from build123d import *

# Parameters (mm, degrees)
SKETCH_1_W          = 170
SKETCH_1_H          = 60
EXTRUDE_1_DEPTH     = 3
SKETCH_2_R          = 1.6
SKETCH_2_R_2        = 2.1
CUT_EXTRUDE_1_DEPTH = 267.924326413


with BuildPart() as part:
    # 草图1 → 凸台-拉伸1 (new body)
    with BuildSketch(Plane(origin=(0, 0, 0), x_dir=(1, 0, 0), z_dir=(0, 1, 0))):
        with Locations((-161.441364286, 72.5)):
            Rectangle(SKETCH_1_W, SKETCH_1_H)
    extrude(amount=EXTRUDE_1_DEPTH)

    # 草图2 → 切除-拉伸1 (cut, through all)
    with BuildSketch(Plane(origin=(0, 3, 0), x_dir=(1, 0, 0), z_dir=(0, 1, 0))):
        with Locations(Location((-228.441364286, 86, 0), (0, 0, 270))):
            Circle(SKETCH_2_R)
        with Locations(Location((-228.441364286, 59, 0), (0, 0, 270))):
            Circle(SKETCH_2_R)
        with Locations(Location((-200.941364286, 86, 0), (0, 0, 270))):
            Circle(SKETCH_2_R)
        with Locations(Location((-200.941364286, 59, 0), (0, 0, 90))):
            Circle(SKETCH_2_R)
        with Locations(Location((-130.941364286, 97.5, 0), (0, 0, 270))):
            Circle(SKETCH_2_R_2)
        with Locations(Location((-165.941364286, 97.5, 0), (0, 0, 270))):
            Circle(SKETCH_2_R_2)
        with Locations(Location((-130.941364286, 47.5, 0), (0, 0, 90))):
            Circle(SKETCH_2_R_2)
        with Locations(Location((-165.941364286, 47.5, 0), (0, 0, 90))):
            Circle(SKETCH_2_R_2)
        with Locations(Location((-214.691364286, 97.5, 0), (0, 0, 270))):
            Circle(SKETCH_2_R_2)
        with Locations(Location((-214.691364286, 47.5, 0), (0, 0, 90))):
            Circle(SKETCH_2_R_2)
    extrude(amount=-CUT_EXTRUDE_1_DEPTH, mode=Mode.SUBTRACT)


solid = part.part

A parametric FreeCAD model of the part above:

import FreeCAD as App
import Part
import Sketcher

V = App.Vector


def add_polygon(sketch, points):
    """Adds a closed chain of lines whose ends are joined by coincident constraints."""
    first, n = sketch.GeometryCount, len(points)
    for a, b in zip(points, points[1:] + points[:1]):
        sketch.addGeometry(Part.LineSegment(App.Vector(*a, 0), App.Vector(*b, 0)), False)
    for i in range(n):
        sketch.addConstraint(Sketcher.Constraint("Coincident", first + i, 2, first + (i + 1) % n, 1))

doc = App.newDocument("Part")
body = doc.addObject("PartDesign::Body", "Body")

# Sketch on XZ plane
sketch1 = doc.addObject("Sketcher::SketchObject", "Sketch")
body.addObject(sketch1)
sketch1.AttachmentSupport = (doc.XZ_Plane, [""])
sketch1.MapMode = "FlatFace"
add_polygon(sketch1, [(-246, -102), (-246, -42), (-76, -42), (-76, -102)])  # lines 0-3
sketch1.addConstraint([
    Sketcher.Constraint("Vertical", 0),
    Sketcher.Constraint("Horizontal", 1),
    Sketcher.Constraint("Vertical", 2),
    Sketcher.Constraint("Horizontal", 3),
    Sketcher.Constraint("DistanceX", 1, 1, 1, 2, 170.0),
    Sketcher.Constraint("DistanceY", 0, 1, 0, 2, 60.0),
    Sketcher.Constraint("DistanceY", 0, 2, -1, 1, 42.5),
    Sketcher.Constraint("DistanceX", 0, 2, -1, 1, 246.441364),
])
pad1 = doc.addObject("PartDesign::Pad", "Pad")
body.addObject(pad1)
pad1.Profile = sketch1
pad1.Length = 3
pad1.Reversed = True

# Sketch on XZ plane
sketch2 = doc.addObject("Sketcher::SketchObject", "Sketch001")
body.addObject(sketch2)
sketch2.AttachmentSupport = (doc.XZ_Plane, [""])
sketch2.MapMode = "FlatFace"
sketch2.AttachmentOffset = App.Placement(V(0, 0, -3), App.Rotation())
sketch2.addGeometry([
    Part.Circle(V(-228.4, -86, 0), V(0, 0, 1), 1.6),  # 0
    Part.Circle(V(-228.4, -59, 0), V(0, 0, 1), 1.6),  # 1
    Part.Circle(V(-200.9, -86, 0), V(0, 0, 1), 1.6),  # 2
    Part.Circle(V(-200.9, -59, 0), V(0, 0, 1), 1.6),  # 3
    Part.Circle(V(-130.9, -97.5, 0), V(0, 0, 1), 2.1),  # 4
    Part.Circle(V(-165.9, -97.5, 0), V(0, 0, 1), 2.1),  # 5
    Part.Circle(V(-130.9, -47.5, 0), V(0, 0, 1), 2.1),  # 6
    Part.Circle(V(-165.9, -47.5, 0), V(0, 0, 1), 2.1),  # 7
    Part.Circle(V(-214.7, -97.5, 0), V(0, 0, 1), 2.1),  # 8
    Part.Circle(V(-214.7, -47.5, 0), V(0, 0, 1), 2.1),  # 9
], False)
sketch2.addConstraint([
    Sketcher.Constraint("Equal", 0, 1),
    Sketcher.Constraint("Equal", 1, 2),
    Sketcher.Constraint("Equal", 2, 3),
    Sketcher.Constraint("Equal", 4, 5),
    Sketcher.Constraint("Equal", 5, 6),
    Sketcher.Constraint("Equal", 6, 7),
    Sketcher.Constraint("Equal", 7, 8),
    Sketcher.Constraint("Equal", 8, 9),
    Sketcher.Constraint("Horizontal", 0, 3, 2, 3),
    Sketcher.Constraint("Horizontal", 1, 3, 3, 3),
    Sketcher.Constraint("Horizontal", 4, 3, 5, 3),
    Sketcher.Constraint("Horizontal", 6, 3, 7, 3),
    Sketcher.Constraint("Horizontal", 5, 3, 8, 3),
    Sketcher.Constraint("Horizontal", 7, 3, 9, 3),
    Sketcher.Constraint("Vertical", 0, 3, 1, 3),
    Sketcher.Constraint("Vertical", 2, 3, 3, 3),
    Sketcher.Constraint("Vertical", 4, 3, 6, 3),
    Sketcher.Constraint("Vertical", 5, 3, 7, 3),
    Sketcher.Constraint("Vertical", 8, 3, 9, 3),
    Sketcher.Constraint("Diameter", 0, 3.2),
    Sketcher.Constraint("Diameter", 4, 4.2),
    Sketcher.Constraint("DistanceY", 0, 3, -1, 1, 86.0),
    Sketcher.Constraint("DistanceY", 1, 3, -1, 1, 59.0),
    Sketcher.Constraint("DistanceX", 2, 3, 4, 3, 70.0),
    Sketcher.Constraint("DistanceX", 5, 3, 4, 3, 35.0),
    Sketcher.Constraint("DistanceY", 4, 3, 6, 3, 50.0),
    Sketcher.Constraint("DistanceY", 4, 3, -1, 1, 97.5),
    Sketcher.Constraint("DistanceX", 0, 3, 2, 3, 27.5),
    Sketcher.Constraint("DistanceX", 0, 3, 8, 3, 13.75),
    Sketcher.Constraint("DistanceX", 0, 3, -1, 1, 228.441364),
])
pocket1 = doc.addObject("PartDesign::Pocket", "Pocket")
body.addObject(pocket1)
pocket1.Profile = sketch2
pocket1.Type = "ThroughAll"
pocket1.Reversed = True

doc.recompute()
